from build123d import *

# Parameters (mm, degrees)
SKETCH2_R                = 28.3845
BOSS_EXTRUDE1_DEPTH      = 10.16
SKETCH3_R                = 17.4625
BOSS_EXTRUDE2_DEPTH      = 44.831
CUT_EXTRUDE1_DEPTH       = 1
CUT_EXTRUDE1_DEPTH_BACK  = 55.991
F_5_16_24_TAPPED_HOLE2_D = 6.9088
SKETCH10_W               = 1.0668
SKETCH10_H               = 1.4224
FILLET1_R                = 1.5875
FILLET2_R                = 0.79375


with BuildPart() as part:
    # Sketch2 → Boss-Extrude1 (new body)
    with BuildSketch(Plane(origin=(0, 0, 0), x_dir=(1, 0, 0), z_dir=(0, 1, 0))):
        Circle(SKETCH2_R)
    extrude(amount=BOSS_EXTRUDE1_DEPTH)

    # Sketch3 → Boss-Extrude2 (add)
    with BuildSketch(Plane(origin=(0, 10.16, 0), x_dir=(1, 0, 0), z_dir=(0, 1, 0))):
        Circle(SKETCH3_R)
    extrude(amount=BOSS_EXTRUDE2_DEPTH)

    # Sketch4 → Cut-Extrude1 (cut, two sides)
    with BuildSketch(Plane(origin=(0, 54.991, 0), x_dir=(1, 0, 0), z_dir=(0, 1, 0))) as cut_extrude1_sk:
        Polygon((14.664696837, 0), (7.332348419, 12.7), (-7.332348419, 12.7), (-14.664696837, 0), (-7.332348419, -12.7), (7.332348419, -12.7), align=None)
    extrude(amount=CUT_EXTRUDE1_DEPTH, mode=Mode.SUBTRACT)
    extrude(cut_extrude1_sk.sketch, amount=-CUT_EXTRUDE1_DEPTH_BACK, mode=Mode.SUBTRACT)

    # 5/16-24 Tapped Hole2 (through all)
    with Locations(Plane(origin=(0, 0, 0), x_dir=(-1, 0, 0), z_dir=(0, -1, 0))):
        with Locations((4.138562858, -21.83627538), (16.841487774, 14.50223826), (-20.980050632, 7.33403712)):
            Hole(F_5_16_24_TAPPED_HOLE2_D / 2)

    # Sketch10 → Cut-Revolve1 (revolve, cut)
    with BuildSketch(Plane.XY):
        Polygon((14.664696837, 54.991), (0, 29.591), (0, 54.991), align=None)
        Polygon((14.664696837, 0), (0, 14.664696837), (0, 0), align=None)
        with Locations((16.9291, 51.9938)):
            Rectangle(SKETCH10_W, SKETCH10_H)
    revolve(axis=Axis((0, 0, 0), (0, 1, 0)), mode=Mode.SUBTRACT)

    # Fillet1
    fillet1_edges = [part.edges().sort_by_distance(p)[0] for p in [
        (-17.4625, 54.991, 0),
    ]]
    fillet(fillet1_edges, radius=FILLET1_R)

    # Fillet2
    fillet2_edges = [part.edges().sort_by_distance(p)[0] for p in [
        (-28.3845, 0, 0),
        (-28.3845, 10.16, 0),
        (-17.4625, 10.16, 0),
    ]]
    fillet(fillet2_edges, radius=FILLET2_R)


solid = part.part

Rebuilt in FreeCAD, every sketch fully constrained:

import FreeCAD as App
import Part
import Sketcher
Q = App.Units.Quantity


def edges_at(feature, points):
    """Names of the edges that pass closest to the given points."""
    edges = feature.Shape.Edges
    near = lambda p: min(range(len(edges)), key=lambda i: edges[i].distToShape(Part.Vertex(*p))[0])
    return sorted({f"Edge{near(p) + 1}" for p in points})

doc = App.newDocument("Part")
body = doc.addObject("PartDesign::Body", "Body")

sketch1 = body.newObject("Sketcher::SketchObject", "Sketch")
sketch1.AttachmentSupport = (doc.getObject("XZ_Plane"), [""])
sketch1.MapMode = "FlatFace"
sketch1.addGeometry(Part.Circle(App.Vector(0, 0, 0), App.Vector(0, 0, 1), 28), False)
sketch1.addConstraint([
    Sketcher.Constraint("Coincident", 0, 3, -1, 1),
    Sketcher.Constraint("Diameter", 0, Q("2.235 in")),
])
pad1 = body.newObject("PartDesign::Pad", "Pad")
pad1.Profile = sketch1
pad1.Length = Q("0.4 in")
pad1.Reversed = True

sketch2 = body.newObject("Sketcher::SketchObject", "Sketch001")
sketch2.AttachmentSupport = (doc.getObject("XZ_Plane"), [""])
sketch2.MapMode = "FlatFace"
sketch2.AttachmentOffset = App.Placement(App.Vector(0, 0, -0.4 * 25.4), App.Rotation())
sketch2.addGeometry(Part.Circle(App.Vector(0, 0, 0), App.Vector(0, 0, 1), 17), False)
sketch2.addConstraint([
    Sketcher.Constraint("Coincident", 0, 3, -1, 1),
    Sketcher.Constraint("Diameter", 0, Q("1.375 in")),
])
pad2 = body.newObject("PartDesign::Pad", "Pad001")
pad2.Profile = sketch2
pad2.Length = Q("1.765 in")
pad2.Reversed = True

sketch3 = body.newObject("Sketcher::SketchObject", "Sketch002")
sketch3.AttachmentSupport = (doc.getObject("XZ_Plane"), [""])
sketch3.MapMode = "FlatFace"
sketch3.AttachmentOffset = App.Placement(App.Vector(0, 0, -2.165 * 25.4), App.Rotation())
sketch3.addGeometry([
    Part.LineSegment(App.Vector(15, 0, 0), App.Vector(7, -13, 0)),
    Part.LineSegment(App.Vector(7, -13, 0), App.Vector(-7, -13, 0)),
    Part.LineSegment(App.Vector(-7, -13, 0), App.Vector(-15, 0, 0)),
    Part.LineSegment(App.Vector(-15, 0, 0), App.Vector(-7, 13, 0)),
    Part.LineSegment(App.Vector(-7, 13, 0), App.Vector(7, 13, 0)),
    Part.LineSegment(App.Vector(7, 13, 0), App.Vector(15, 0, 0)),
], False)
sketch3.addConstraint([
    Sketcher.Constraint("Coincident", 0, 2, 1, 1),
    Sketcher.Constraint("Coincident", 1, 2, 2, 1),
    Sketcher.Constraint("Coincident", 2, 2, 3, 1),
    Sketcher.Constraint("Coincident", 3, 2, 4, 1),
    Sketcher.Constraint("Coincident", 4, 2, 5, 1),
    Sketcher.Constraint("Coincident", 5, 2, 0, 1),
    Sketcher.Constraint("Horizontal", 1),
    Sketcher.Constraint("Horizontal", 4),
    Sketcher.Constraint("Symmetric", 0, 2, 3, 2, -1, 1),
    Sketcher.Constraint("Symmetric", 2, 2, 5, 2, -1, 1),
    Sketcher.Constraint("PointOnObject", 2, 2, -1),
    Sketcher.Constraint("Parallel", 2, 5),
    Sketcher.Constraint("Vertical", 1, 2, 3, 2),
    Sketcher.Constraint("Angle", 0, Q("-120 deg")),
    Sketcher.Constraint("DistanceY", 1, 2, 3, 2, Q("1 in")),
    Sketcher.Constraint("DistanceX", 1, 2, 1, 1, 14.664697),
])
pocket1 = body.newObject("PartDesign::Pocket", "Pocket")
pocket1.Profile = sketch3
pocket1.Type = "ThroughAll"
pocket1.Midplane = True

sketch4 = body.newObject("Sketcher::SketchObject", "Sketch003")
sketch4.AttachmentSupport = (doc.getObject("XZ_Plane"), [""])
sketch4.MapMode = "FlatFace"
sketch4.addGeometry([
    Part.Circle(App.Vector(-4.1, 21.8, 0), App.Vector(0, 0, 1), 3.5),
    Part.Circle(App.Vector(-16.8, -14.5, 0), App.Vector(0, 0, 1), 3.5),
    Part.Circle(App.Vector(21, -7.3, 0), App.Vector(0, 0, 1), 3.5),
], False)
sketch4.addConstraint([
    Sketcher.Constraint("Equal", 0, 1),
    Sketcher.Constraint("Equal", 1, 2),
    Sketcher.Constraint("Diameter", 0, Q("0.272 in")),
    Sketcher.Constraint("DistanceY", 1, 3, 2, 3, 7.168201),
    Sketcher.Constraint("DistanceY", 1, 3, -1, 1, 14.502238),
    Sketcher.Constraint("DistanceX", -1, 1, 2, 3, 20.980051),
    Sketcher.Constraint("DistanceX", 1, 3, 2, 3, 37.821538),
    Sketcher.Constraint("DistanceX", 0, 3, -1, 1, 4.138563),
    Sketcher.Constraint("DistanceY", -1, 1, 0, 3, 21.836275),
])
doc.recompute()
hole = body.newObject("PartDesign::Hole", "Hole")
hole.Profile = sketch4
hole.ThreadType = "None"
hole.Diameter = Q("0.272 in")
hole.DepthType = "ThroughAll"

sketch5 = body.newObject("Sketcher::SketchObject", "Sketch004")
sketch5.AttachmentSupport = (doc.getObject("XY_Plane"), [""])
sketch5.MapMode = "FlatFace"
sketch5.addGeometry([
    Part.LineSegment(App.Vector(0, 29.6, 0), App.Vector(14.7, 55, 0)),
    Part.LineSegment(App.Vector(14.7, 55, 0), App.Vector(0, 55, 0)),
    Part.LineSegment(App.Vector(0, 55, 0), App.Vector(0, 29.6, 0)),
    Part.LineSegment(App.Vector(14.7, 0, 0), App.Vector(0, 14.7, 0)),
    Part.LineSegment(App.Vector(0, 14.7, 0), App.Vector(0, 0, 0)),
    Part.LineSegment(App.Vector(0, 0, 0), App.Vector(14.7, 0, 0)),
    Part.LineSegment(App.Vector(16.4, 52.7, 0), App.Vector(16.4, 51.3, 0)),
    Part.LineSegment(App.Vector(16.4, 51.3, 0), App.Vector(17.5, 51.3, 0)),
    Part.LineSegment(App.Vector(17.5, 51.3, 0), App.Vector(17.5, 52.7, 0)),
    Part.LineSegment(App.Vector(17.5, 52.7, 0), App.Vector(16.4, 52.7, 0)),
], False)
sketch5.addConstraint([
    Sketcher.Constraint("Coincident", 0, 2, 1, 1),
    Sketcher.Constraint("Coincident", 1, 2, 2, 1),
    Sketcher.Constraint("Coincident", 2, 2, 0, 1),
    Sketcher.Constraint("Coincident", 3, 2, 4, 1),
    Sketcher.Constraint("Coincident", 4, 2, 5, 1),
    Sketcher.Constraint("Coincident", 5, 2, 3, 1),
    Sketcher.Constraint("Coincident", 6, 2, 7, 1),
    Sketcher.Constraint("Coincident", 7, 2, 8, 1),
    Sketcher.Constraint("Coincident", 8, 2, 9, 1),
    Sketcher.Constraint("Coincident", 9, 2, 6, 1),
    Sketcher.Constraint("Horizontal", 1),
    Sketcher.Constraint("Vertical", 2),
    Sketcher.Constraint("Vertical", 4),
    Sketcher.Constraint("Horizontal", 5),
    Sketcher.Constraint("Vertical", 6),
    Sketcher.Constraint("Horizontal", 7),
    Sketcher.Constraint("Vertical", 8),
    Sketcher.Constraint("Horizontal", 9),
    Sketcher.Constraint("Coincident", 4, 2, -1, 1),
    Sketcher.Constraint("PointOnObject", 1, 2, -2),
    Sketcher.Constraint("Vertical", 0, 2, 5, 2),
    Sketcher.Constraint("Equal", 5, 4),
    Sketcher.Constraint("DistanceY", 2, 2, 2, 1, Q("1 in")),
    Sketcher.Constraint("Angle", 0, Q("60 deg")),
    Sketcher.Constraint("DistanceX", 7, 1, 7, 2, Q("0.042 in")),
    Sketcher.Constraint("DistanceY", 6, 2, 6, 1, Q("0.056 in")),
    Sketcher.Constraint("DistanceY", 8, 2, 0, 2, Q("0.09 in")),
    Sketcher.Constraint("DistanceY", -1, 1, 0, 2, Q("2.165 in")),
    Sketcher.Constraint("DistanceX", -1, 1, 7, 2, Q("0.6875 in")),
])
groove = body.newObject("PartDesign::Groove", "Groove")
groove.Profile = sketch5
groove.ReferenceAxis = (sketch5, ["V_Axis"])
groove.Angle = 360
doc.recompute()

fillet = body.newObject("PartDesign::Fillet", "Fillet")
fillet.Base = (groove, edges_at(groove, [(-17.462, 54.991, 0)]))
fillet.Radius = Q("0.0625 in")
doc.recompute()

fillet2 = body.newObject("PartDesign::Fillet", "Fillet001")
fillet2.Base = (fillet, edges_at(fillet, [(-28.384, 0, 0), (-28.384, 10.16, 0), (-17.462, 10.16, 0)]))
fillet2.Radius = Q("0.03125 in")

doc.recompute()
